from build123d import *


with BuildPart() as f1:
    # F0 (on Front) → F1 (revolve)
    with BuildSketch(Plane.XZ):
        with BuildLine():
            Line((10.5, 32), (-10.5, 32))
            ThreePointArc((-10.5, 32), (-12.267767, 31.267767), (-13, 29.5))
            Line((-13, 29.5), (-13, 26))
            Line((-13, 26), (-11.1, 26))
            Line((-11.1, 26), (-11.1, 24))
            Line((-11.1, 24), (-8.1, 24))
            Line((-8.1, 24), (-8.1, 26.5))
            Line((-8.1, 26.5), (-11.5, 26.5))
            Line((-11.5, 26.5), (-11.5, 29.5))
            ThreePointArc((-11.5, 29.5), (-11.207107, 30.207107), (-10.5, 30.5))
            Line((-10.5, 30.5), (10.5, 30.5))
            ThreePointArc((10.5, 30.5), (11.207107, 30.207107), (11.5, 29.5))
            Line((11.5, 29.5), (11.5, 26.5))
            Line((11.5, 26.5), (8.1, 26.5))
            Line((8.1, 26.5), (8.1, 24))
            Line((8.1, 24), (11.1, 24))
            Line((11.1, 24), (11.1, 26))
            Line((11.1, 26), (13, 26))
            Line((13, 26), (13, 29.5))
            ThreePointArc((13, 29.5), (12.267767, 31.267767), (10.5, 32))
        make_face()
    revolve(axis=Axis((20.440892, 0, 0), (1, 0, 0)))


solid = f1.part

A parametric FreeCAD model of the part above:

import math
import FreeCAD as App
import Part
import Sketcher

V = App.Vector
Q = App.Units.Quantity

doc = App.newDocument("Part")
body = doc.addObject("PartDesign::Body", "Body")

sketch1 = body.newObject("Sketcher::SketchObject", "Sketch")
sketch1.AttachmentSupport = (doc.getObject("XZ_Plane"), [""])
sketch1.MapMode = "FlatFace"
sketch1.addGeometry([
    Part.LineSegment(V(10.5, 32, 0), V(-10.5, 32, 0)),
    Part.ArcOfCircle(Part.Circle(V(-10.5, 29.5, 0), V(0, 0, 1), 2.5), math.radians(90), math.radians(180)),
    Part.LineSegment(V(-13, 29.5, 0), V(-13, 26, 0)),
    Part.LineSegment(V(-13, 26, 0), V(-11.1, 26, 0)),
    Part.LineSegment(V(-11.1, 26, 0), V(-11.1, 24, 0)),
    Part.LineSegment(V(-11.1, 24, 0), V(-8.1, 24, 0)),
    Part.LineSegment(V(-8.1, 24, 0), V(-8.1, 26.5, 0)),
    Part.LineSegment(V(-8.1, 26.5, 0), V(-11.5, 26.5, 0)),
    Part.LineSegment(V(-11.5, 26.5, 0), V(-11.5, 29.5, 0)),
    Part.ArcOfCircle(Part.Circle(V(-10.5, 29.5, 0), V(0, 0, 1), 1), math.radians(90), math.radians(180)),
    Part.LineSegment(V(-10.5, 30.5, 0), V(10.5, 30.5, 0)),
    Part.ArcOfCircle(Part.Circle(V(10.5, 29.5, 0), V(0, 0, 1), 1), math.radians(0), math.radians(90)),
    Part.LineSegment(V(11.5, 29.5, 0), V(11.5, 26.5, 0)),
    Part.LineSegment(V(11.5, 26.5, 0), V(8.1, 26.5, 0)),
    Part.LineSegment(V(8.1, 26.5, 0), V(8.1, 24, 0)),
    Part.LineSegment(V(8.1, 24, 0), V(11.1, 24, 0)),
    Part.LineSegment(V(11.1, 24, 0), V(11.1, 26, 0)),
    Part.LineSegment(V(11.1, 26, 0), V(13, 26, 0)),
    Part.LineSegment(V(13, 26, 0), V(13, 29.5, 0)),
    Part.ArcOfCircle(Part.Circle(V(10.5, 29.5, 0), V(0, 0, 1), 2.5), math.radians(0), math.radians(90)),
], False)
sketch1.addConstraint([
    Sketcher.Constraint("Tangent", 0, 2, 1, 1),
    Sketcher.Constraint("Tangent", 1, 2, 2, 1),
    Sketcher.Constraint("Coincident", 2, 2, 3, 1),
    Sketcher.Constraint("Coincident", 3, 2, 4, 1),
    Sketcher.Constraint("Coincident", 4, 2, 5, 1),
    Sketcher.Constraint("Coincident", 5, 2, 6, 1),
    Sketcher.Constraint("Coincident", 6, 2, 7, 1),
    Sketcher.Constraint("Coincident", 7, 2, 8, 1),
    Sketcher.Constraint("Tangent", 8, 2, 9, 2),
    Sketcher.Constraint("Tangent", 9, 1, 10, 1),
    Sketcher.Constraint("Tangent", 10, 2, 11, 2),
    Sketcher.Constraint("Tangent", 11, 1, 12, 1),
    Sketcher.Constraint("Coincident", 12, 2, 13, 1),
    Sketcher.Constraint("Coincident", 13, 2, 14, 1),
    Sketcher.Constraint("Coincident", 14, 2, 15, 1),
    Sketcher.Constraint("Coincident", 15, 2, 16, 1),
    Sketcher.Constraint("Coincident", 16, 2, 17, 1),
    Sketcher.Constraint("Coincident", 17, 2, 18, 1),
    Sketcher.Constraint("Tangent", 18, 2, 19, 1),
    Sketcher.Constraint("Tangent", 19, 2, 0, 1),
    Sketcher.Constraint("Horizontal", 0),
    Sketcher.Constraint("Vertical", 2),
    Sketcher.Constraint("Horizontal", 3),
    Sketcher.Constraint("Vertical", 4),
    Sketcher.Constraint("Horizontal", 5),
    Sketcher.Constraint("Vertical", 6),
    Sketcher.Constraint("Horizontal", 7),
    Sketcher.Constraint("Vertical", 8),
    Sketcher.Constraint("Horizontal", 10),
    Sketcher.Constraint("Vertical", 12),
    Sketcher.Constraint("Horizontal", 13),
    Sketcher.Constraint("Vertical", 14),
    Sketcher.Constraint("Horizontal", 15),
    Sketcher.Constraint("Vertical", 16),
    Sketcher.Constraint("Horizontal", 17),
    Sketcher.Constraint("Vertical", 18),
    Sketcher.Constraint("Coincident", 9, 3, 1, 3),
    Sketcher.Constraint("Coincident", 19, 3, 11, 3),
    Sketcher.Constraint("Equal", 9, 11),
    Sketcher.Constraint("Symmetric", 7, 2, 12, 2, -2),
    Sketcher.Constraint("Symmetric", 5, 2, 14, 2, -2),
    Sketcher.Constraint("Symmetric", 3, 2, 16, 2, -2),
    Sketcher.Constraint("Equal", 15, 8),
    Sketcher.Constraint("Radius", 9, Q("0.999999 mm")),
    Sketcher.Constraint("Radius", 1, Q("2.5 mm")),
    Sketcher.Constraint("DistanceX", 0, 2, 0, 1, Q("21 mm")),
    Sketcher.Constraint("DistanceX", 5, 1, 5, 2, Q("3 mm")),
    Sketcher.Constraint("DistanceY", 4, 2, 4, 1, Q("2 mm")),
    Sketcher.Constraint("DistanceX", 3, 1, 3, 2, Q("1.9 mm")),
    Sketcher.Constraint("DistanceY", 2, 2, 2, 1, Q("3.5 mm")),
    Sketcher.Constraint("DistanceY", -1, 1, 0, 2, Q("32 mm")),
])
revolution = body.newObject("PartDesign::Revolution", "Revolution")
revolution.Profile = sketch1
revolution.ReferenceAxis = (sketch1, ["H_Axis"])
revolution.Angle = 360

doc.recompute()
